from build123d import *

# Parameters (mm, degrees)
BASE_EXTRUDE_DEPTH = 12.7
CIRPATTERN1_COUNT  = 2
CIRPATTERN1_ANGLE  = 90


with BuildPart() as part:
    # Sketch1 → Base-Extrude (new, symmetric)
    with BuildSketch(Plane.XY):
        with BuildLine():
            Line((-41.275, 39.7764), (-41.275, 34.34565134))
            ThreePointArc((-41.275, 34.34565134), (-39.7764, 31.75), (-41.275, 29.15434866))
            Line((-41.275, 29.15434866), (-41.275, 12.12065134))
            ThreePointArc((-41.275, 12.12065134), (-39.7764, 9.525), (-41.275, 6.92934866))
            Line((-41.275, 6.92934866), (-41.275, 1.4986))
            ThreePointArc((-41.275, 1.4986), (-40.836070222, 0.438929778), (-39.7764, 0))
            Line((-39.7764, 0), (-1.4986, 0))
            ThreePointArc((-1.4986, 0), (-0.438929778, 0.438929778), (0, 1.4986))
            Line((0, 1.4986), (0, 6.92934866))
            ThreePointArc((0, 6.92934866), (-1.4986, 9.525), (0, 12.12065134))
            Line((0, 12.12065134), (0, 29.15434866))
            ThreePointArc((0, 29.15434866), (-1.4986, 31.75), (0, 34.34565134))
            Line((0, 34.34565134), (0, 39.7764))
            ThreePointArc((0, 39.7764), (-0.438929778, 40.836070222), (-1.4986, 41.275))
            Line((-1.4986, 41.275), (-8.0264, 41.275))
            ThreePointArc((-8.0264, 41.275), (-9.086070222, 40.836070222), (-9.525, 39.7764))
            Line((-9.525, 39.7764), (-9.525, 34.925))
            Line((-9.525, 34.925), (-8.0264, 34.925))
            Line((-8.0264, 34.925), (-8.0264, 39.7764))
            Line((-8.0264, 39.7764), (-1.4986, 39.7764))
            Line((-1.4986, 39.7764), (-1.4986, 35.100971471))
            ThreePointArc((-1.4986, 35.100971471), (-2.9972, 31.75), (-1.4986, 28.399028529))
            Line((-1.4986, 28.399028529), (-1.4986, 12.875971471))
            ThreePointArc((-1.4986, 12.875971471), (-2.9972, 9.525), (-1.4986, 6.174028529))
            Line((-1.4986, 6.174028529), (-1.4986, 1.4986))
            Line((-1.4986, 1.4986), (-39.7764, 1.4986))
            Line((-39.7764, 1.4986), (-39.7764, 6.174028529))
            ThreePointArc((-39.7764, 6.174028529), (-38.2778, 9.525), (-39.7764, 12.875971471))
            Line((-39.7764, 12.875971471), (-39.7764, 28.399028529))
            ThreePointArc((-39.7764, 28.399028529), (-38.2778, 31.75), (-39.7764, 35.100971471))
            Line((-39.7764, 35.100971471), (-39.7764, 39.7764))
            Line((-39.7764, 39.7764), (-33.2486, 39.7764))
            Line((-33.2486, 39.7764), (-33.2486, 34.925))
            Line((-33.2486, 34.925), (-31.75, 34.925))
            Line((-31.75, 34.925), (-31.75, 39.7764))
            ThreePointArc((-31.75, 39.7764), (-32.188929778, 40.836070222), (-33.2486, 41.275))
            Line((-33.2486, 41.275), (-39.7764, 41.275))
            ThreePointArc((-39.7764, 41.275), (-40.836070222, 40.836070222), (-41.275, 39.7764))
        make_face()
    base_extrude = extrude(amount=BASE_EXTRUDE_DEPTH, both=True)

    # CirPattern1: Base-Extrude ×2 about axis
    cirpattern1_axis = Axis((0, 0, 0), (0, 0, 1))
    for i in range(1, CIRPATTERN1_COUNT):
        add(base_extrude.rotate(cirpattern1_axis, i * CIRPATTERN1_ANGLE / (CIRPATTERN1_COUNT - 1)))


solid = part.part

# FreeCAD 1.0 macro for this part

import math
import FreeCAD as App
import Part
import Sketcher

V = App.Vector
Q = App.Units.Quantity

doc = App.newDocument("Part")
params = doc.addObject("Spreadsheet::Sheet", "Params")
for row, (alias, value) in enumerate([
    ("sketch1_radius", "0.118 in"),
    ("sketch1_radius2", "0.059 in"),
    ("sketch1_radius3", "0.177 in"),
    ("sketch1_width", "1.507 in"),
    ("sketch1_width2", "0.257 in"),
    ("pad1_length", "1 in"),
], start=1):
    params.set(f"A{row}", alias)
    params.set(f"B{row}", "=" + value)
    params.setAlias(f"B{row}", alias)

body = doc.addObject("PartDesign::Body", "Body")

sketch1 = doc.addObject("Sketcher::SketchObject", "Sketch")
body.addObject(sketch1)
sketch1.AttachmentSupport = (doc.XY_Plane, [""])
sketch1.MapMode = "FlatFace"
sketch1.addGeometry([
    Part.LineSegment(V(-41.3, 39.8, 0), V(-41.3, 34.3, 0)),
    Part.ArcOfCircle(Part.Circle(V(-42.8, 31.8, 0), V(0, 0, 1), 3), math.radians(-60), math.radians(60)),
    Part.LineSegment(V(-41.3, 29.2, 0), V(-41.3, 12.1, 0)),
    Part.ArcOfCircle(Part.Circle(V(-42.8, 9.5, 0), V(0, 0, 1), 3), math.radians(-60), math.radians(60)),
    Part.LineSegment(V(-41.3, 6.9, 0), V(-41.3, 1.5, 0)),
    Part.ArcOfCircle(Part.Circle(V(-39.8, 1.5, 0), V(0, 0, 1), 1.5), math.radians(-180), math.radians(-90)),
    Part.LineSegment(V(-39.8, 0, 0), V(-1.5, 0, 0)),
    Part.ArcOfCircle(Part.Circle(V(-1.5, 1.5, 0), V(0, 0, 1), 1.5), math.radians(-90), math.radians(0)),
    Part.LineSegment(V(0, 1.5, 0), V(0, 6.9, 0)),
    Part.ArcOfCircle(Part.Circle(V(1.5, 9.5, 0), V(0, 0, 1), 3), math.radians(120), math.radians(240)),
    Part.LineSegment(V(0, 12.1, 0), V(0, 29.2, 0)),
    Part.ArcOfCircle(Part.Circle(V(1.5, 31.8, 0), V(0, 0, 1), 3), math.radians(120), math.radians(240)),
    Part.LineSegment(V(0, 34.3, 0), V(0, 39.8, 0)),
    Part.ArcOfCircle(Part.Circle(V(-1.5, 39.8, 0), V(0, 0, 1), 1.5), math.radians(0), math.radians(90)),
    Part.LineSegment(V(-1.5, 41.3, 0), V(-8, 41.3, 0)),
    Part.ArcOfCircle(Part.Circle(V(-8, 39.8, 0), V(0, 0, 1), 1.5), math.radians(90), math.radians(180)),
    Part.LineSegment(V(-9.5, 39.8, 0), V(-9.5, 34.9, 0)),
    Part.LineSegment(V(-9.5, 34.9, 0), V(-8, 34.9, 0)),
    Part.LineSegment(V(-8, 34.9, 0), V(-8, 39.8, 0)),
    Part.LineSegment(V(-8, 39.8, 0), V(-1.5, 39.8, 0)),
    Part.LineSegment(V(-1.5, 39.8, 0), V(-1.5, 35.1, 0)),
    Part.ArcOfCircle(Part.Circle(V(1.5, 31.8, 0), V(0, 0, 1), 4.5), math.radians(132), math.radians(228)),
    Part.LineSegment(V(-1.5, 28.4, 0), V(-1.5, 12.9, 0)),
    Part.ArcOfCircle(Part.Circle(V(1.5, 9.5, 0), V(0, 0, 1), 4.5), math.radians(132), math.radians(228)),
    Part.LineSegment(V(-1.5, 6.2, 0), V(-1.5, 1.5, 0)),
    Part.LineSegment(V(-1.5, 1.5, 0), V(-39.8, 1.5, 0)),
    Part.LineSegment(V(-39.8, 1.5, 0), V(-39.8, 6.2, 0)),
    Part.ArcOfCircle(Part.Circle(V(-42.8, 9.5, 0), V(0, 0, 1), 4.5), math.radians(-48), math.radians(48)),
    Part.LineSegment(V(-39.8, 12.9, 0), V(-39.8, 28.4, 0)),
    Part.ArcOfCircle(Part.Circle(V(-42.8, 31.8, 0), V(0, 0, 1), 4.5), math.radians(-48), math.radians(48)),
    Part.LineSegment(V(-39.8, 35.1, 0), V(-39.8, 39.8, 0)),
    Part.LineSegment(V(-39.8, 39.8, 0), V(-33.2, 39.8, 0)),
    Part.LineSegment(V(-33.2, 39.8, 0), V(-33.2, 34.9, 0)),
    Part.LineSegment(V(-33.2, 34.9, 0), V(-31.8, 34.9, 0)),
    Part.LineSegment(V(-31.8, 34.9, 0), V(-31.8, 39.8, 0)),
    Part.ArcOfCircle(Part.Circle(V(-33.2, 39.8, 0), V(0, 0, 1), 1.5), math.radians(0), math.radians(90)),
    Part.LineSegment(V(-33.2, 41.3, 0), V(-39.8, 41.3, 0)),
    Part.ArcOfCircle(Part.Circle(V(-39.8, 39.8, 0), V(0, 0, 1), 1.5), math.radians(90), math.radians(180)),
], False)
sketch1.addConstraint([
    Sketcher.Constraint("Coincident", 0, 2, 1, 2),
    Sketcher.Constraint("Coincident", 1, 1, 2, 1),
    Sketcher.Constraint("Coincident", 2, 2, 3, 2),
    Sketcher.Constraint("Coincident", 3, 1, 4, 1),
    Sketcher.Constraint("Tangent", 4, 2, 5, 1),
    Sketcher.Constraint("Tangent", 5, 2, 6, 1),
    Sketcher.Constraint("Tangent", 6, 2, 7, 1),
    Sketcher.Constraint("Tangent", 7, 2, 8, 1),
    Sketcher.Constraint("Coincident", 8, 2, 9, 2),
    Sketcher.Constraint("Coincident", 9, 1, 10, 1),
    Sketcher.Constraint("Coincident", 10, 2, 11, 2),
    Sketcher.Constraint("Coincident", 11, 1, 12, 1),
    Sketcher.Constraint("Tangent", 12, 2, 13, 1),
    Sketcher.Constraint("Tangent", 13, 2, 14, 1),
    Sketcher.Constraint("Tangent", 14, 2, 15, 1),
    Sketcher.Constraint("Tangent", 15, 2, 16, 1),
    Sketcher.Constraint("Coincident", 16, 2, 17, 1),
    Sketcher.Constraint("Coincident", 17, 2, 18, 1),
    Sketcher.Constraint("Coincident", 18, 2, 19, 1),
    Sketcher.Constraint("Coincident", 19, 2, 20, 1),
    Sketcher.Constraint("Coincident", 20, 2, 21, 1),
    Sketcher.Constraint("Coincident", 21, 2, 22, 1),
    Sketcher.Constraint("Coincident", 22, 2, 23, 1),
    Sketcher.Constraint("Coincident", 23, 2, 24, 1),
    Sketcher.Constraint("Coincident", 24, 2, 25, 1),
    Sketcher.Constraint("Coincident", 25, 2, 26, 1),
    Sketcher.Constraint("Coincident", 26, 2, 27, 1),
    Sketcher.Constraint("Coincident", 27, 2, 28, 1),
    Sketcher.Constraint("Coincident", 28, 2, 29, 1),
    Sketcher.Constraint("Coincident", 29, 2, 30, 1),
    Sketcher.Constraint("Coincident", 30, 2, 31, 1),
    Sketcher.Constraint("Coincident", 31, 2, 32, 1),
    Sketcher.Constraint("Coincident", 32, 2, 33, 1),
    Sketcher.Constraint("Coincident", 33, 2, 34, 1),
    Sketcher.Constraint("Tangent", 34, 2, 35, 1),
    Sketcher.Constraint("Tangent", 35, 2, 36, 1),
    Sketcher.Constraint("Tangent", 36, 2, 37, 1),
    Sketcher.Constraint("Tangent", 37, 2, 0, 1),
    Sketcher.Constraint("Vertical", 0),
    Sketcher.Constraint("Vertical", 2),
    Sketcher.Constraint("Vertical", 4),
    Sketcher.Constraint("Horizontal", 6),
    Sketcher.Constraint("Vertical", 8),
    Sketcher.Constraint("Vertical", 10),
    Sketcher.Constraint("Vertical", 12),
    Sketcher.Constraint("Horizontal", 14),
    Sketcher.Constraint("Vertical", 16),
    Sketcher.Constraint("Horizontal", 17),
    Sketcher.Constraint("Vertical", 18),
    Sketcher.Constraint("Horizontal", 19),
    Sketcher.Constraint("Vertical", 20),
    Sketcher.Constraint("Vertical", 22),
    Sketcher.Constraint("Vertical", 24),
    Sketcher.Constraint("Horizontal", 25),
    Sketcher.Constraint("Vertical", 26),
    Sketcher.Constraint("Vertical", 28),
    Sketcher.Constraint("Vertical", 30),
    Sketcher.Constraint("Horizontal", 31),
    Sketcher.Constraint("Vertical", 32),
    Sketcher.Constraint("Horizontal", 33),
    Sketcher.Constraint("Vertical", 34),
    Sketcher.Constraint("Horizontal", 36),
    Sketcher.Constraint("Coincident", 21, 3, 11, 3),
    Sketcher.Constraint("Coincident", 23, 3, 9, 3),
    Sketcher.Constraint("Coincident", 27, 3, 3, 3),
    Sketcher.Constraint("Coincident", 29, 3, 1, 3),
    Sketcher.Constraint("Coincident", 18, 2, 15, 3),
    Sketcher.Constraint("Coincident", 19, 2, 13, 3),
    Sketcher.Constraint("Coincident", 24, 2, 7, 3),
    Sketcher.Constraint("Coincident", 25, 2, 5, 3),
    Sketcher.Constraint("Coincident", 30, 2, 37, 3),
    Sketcher.Constraint("Coincident", 31, 2, 35, 3),
    Sketcher.Constraint("Equal", 1, 3),
    Sketcher.Constraint("Equal", 3, 9),
    Sketcher.Constraint("Equal", 9, 11),
    Sketcher.Constraint("Equal", 7, 13),
    Sketcher.Constraint("Equal", 21, 23),
    Sketcher.Constraint("Equal", 23, 27),
    Sketcher.Constraint("Equal", 27, 29),
    Sketcher.Constraint("Equal", 15, 35),
    Sketcher.Constraint("PointOnObject", 5, 2, -1),
    Sketcher.Constraint("PointOnObject", 7, 2, -2),
    Sketcher.Constraint("PointOnObject", 9, 1, -2),
    Sketcher.Constraint("PointOnObject", 11, 1, -2),
    Sketcher.Constraint("Horizontal", 3, 3, 9, 3),
    Sketcher.Constraint("Horizontal", 1, 3, 11, 3),
    Sketcher.Constraint("Horizontal", 15, 3, 35, 3),
    Sketcher.Constraint("Horizontal", 3, 1, 8, 2),
    Sketcher.Constraint("Horizontal", 2, 2, 9, 1),
    Sketcher.Constraint("Horizontal", 1, 1, 10, 2),
    Sketcher.Constraint("Horizontal", 0, 2, 11, 1),
    Sketcher.Constraint("Horizontal", 22, 2, 27, 2),
    Sketcher.Constraint("Horizontal", 17, 2, 32, 2),
    Sketcher.Constraint("Vertical", 1, 3, 3, 3),
    Sketcher.Constraint("Vertical", 20, 2, 21, 2),
    Sketcher.Constraint("Equal", 19, 31),
    Sketcher.Constraint("Equal", 0, 4),
    Sketcher.Constraint("Radius", 1, Q("0.118 in")),
    Sketcher.Constraint("Radius", 5, Q("0.059 in")),
    Sketcher.Constraint("Radius", 21, Q("0.177 in")),
    Sketcher.Constraint("DistanceX", 6, 1, 6, 2, Q("1.507 in")),
    Sketcher.Constraint("DistanceX", 14, 2, 14, 1, Q("0.257 in")),
    Sketcher.Constraint("DistanceY", 16, 2, 16, 1, Q("0.191 in")),
    Sketcher.Constraint("DistanceY", -1, 1, 1, 3, Q("1.25 in")),
    Sketcher.Constraint("DistanceX", 1, 3, -1, 1, Q("1.684 in")),
    Sketcher.Constraint("DistanceY", -1, 1, 3, 3, Q("0.375 in")),
])
sketch1.setExpression("Constraints[97]", "Params.sketch1_radius")
sketch1.setExpression("Constraints[98]", "Params.sketch1_radius2")
sketch1.setExpression("Constraints[99]", "Params.sketch1_radius3")
sketch1.setExpression("Constraints[100]", "Params.sketch1_width")
sketch1.setExpression("Constraints[101]", "Params.sketch1_width2")
pad1 = doc.addObject("PartDesign::Pad", "Pad")
body.addObject(pad1)
pad1.Profile = sketch1
pad1.setExpression("Length", "Params.pad1_length")
pad1.Midplane = True
doc.recompute()

polarpattern = doc.addObject("PartDesign::PolarPattern", "PolarPattern")
body.addObject(polarpattern)
polarpattern.Originals = [pad1]
polarpattern.Axis = (doc.Z_Axis, [""])
polarpattern.Angle = 90
polarpattern.Occurrences = 2
body.Tip = polarpattern

doc.recompute()
